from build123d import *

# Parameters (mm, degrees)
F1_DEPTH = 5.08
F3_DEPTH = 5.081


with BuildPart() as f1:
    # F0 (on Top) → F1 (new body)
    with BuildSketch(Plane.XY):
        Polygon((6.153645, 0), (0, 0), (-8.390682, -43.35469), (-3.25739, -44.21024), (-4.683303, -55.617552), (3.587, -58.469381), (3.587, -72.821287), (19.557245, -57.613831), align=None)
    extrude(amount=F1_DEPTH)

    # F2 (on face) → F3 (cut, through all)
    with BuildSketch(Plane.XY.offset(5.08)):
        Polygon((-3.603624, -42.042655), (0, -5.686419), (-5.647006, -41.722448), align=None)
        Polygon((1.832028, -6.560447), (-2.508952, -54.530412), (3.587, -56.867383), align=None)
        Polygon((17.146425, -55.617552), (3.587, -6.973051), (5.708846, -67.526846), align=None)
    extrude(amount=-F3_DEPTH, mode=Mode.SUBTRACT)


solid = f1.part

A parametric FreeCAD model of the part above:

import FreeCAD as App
import Part
import Sketcher
from FreeCAD import Vector
Q = App.Units.Quantity

doc = App.newDocument("Part")
body = doc.addObject("PartDesign::Body", "Body")

# Sketch on XY plane
sketch1 = doc.addObject("Sketcher::SketchObject", "Sketch")
body.addObject(sketch1)
sketch1.AttachmentSupport = (doc.XY_Plane, [""])
sketch1.MapMode = "FlatFace"
sketch1.addGeometry([
    Part.LineSegment(Vector(6.153645, 0, 0), Vector(0, 0, 0)),  # 0
    Part.LineSegment(Vector(0, 0, 0), Vector(-8.390682, -43.35469, 0)),  # 1
    Part.LineSegment(Vector(-8.390682, -43.35469, 0), Vector(-3.25739, -44.21024, 0)),  # 2
    Part.LineSegment(Vector(-3.25739, -44.21024, 0), Vector(-4.683303, -55.617552, 0)),  # 3
    Part.LineSegment(Vector(-4.683303, -55.617552, 0), Vector(3.587, -58.469381, 0)),  # 4
    Part.LineSegment(Vector(3.587, -58.469381, 0), Vector(3.587, -72.821287, 0)),  # 5
    Part.LineSegment(Vector(3.587, -72.821287, 0), Vector(19.557245, -57.613831, 0)),  # 6
    Part.LineSegment(Vector(19.557245, -57.613831, 0), Vector(6.153645, 0, 0)),  # 7
], False)
sketch1.addConstraint([
    Sketcher.Constraint("Coincident", 0, 2, 1, 1),
    Sketcher.Constraint("Coincident", 1, 2, 2, 1),
    Sketcher.Constraint("Coincident", 2, 2, 3, 1),
    Sketcher.Constraint("Coincident", 3, 2, 4, 1),
    Sketcher.Constraint("Coincident", 4, 2, 5, 1),
    Sketcher.Constraint("Coincident", 5, 2, 6, 1),
    Sketcher.Constraint("Coincident", 6, 2, 7, 1),
    Sketcher.Constraint("Coincident", 7, 2, 0, 1),
    Sketcher.Constraint("Horizontal", 0),
    Sketcher.Constraint("Vertical", 5),
    Sketcher.Constraint("Coincident", 0, 2, -1, 1),
    Sketcher.Constraint("Distance", 2, Q("5.2041 mm")),
    Sketcher.Constraint("DistanceX", -1, 1, 4, 2, Q("3.587 mm")),
    Sketcher.Constraint("Distance", 4, Q("8.748191 mm")),
    Sketcher.Constraint("Distance", 6, Q("22.052561 mm")),
    Sketcher.Constraint("Distance", 7, Q("59.15243 mm")),
    Sketcher.Constraint("DistanceX", 0, 2, 0, 1, Q("6.153645 mm")),
    Sketcher.Constraint("DistanceY", 5, 2, 5, 1, Q("14.351906 mm")),
    Sketcher.Constraint("DistanceY", 1, 2, -1, 1, Q("43.35469 mm")),
    Sketcher.Constraint("DistanceX", 2, 2, -1, 1, Q("3.25739 mm")),
    Sketcher.Constraint("DistanceY", 2, 2, -1, 1, Q("44.21024 mm")),
    Sketcher.Constraint("DistanceY", 4, 2, -1, 1, Q("58.469381 mm")),
    Sketcher.Constraint("DistanceX", 1, 2, 3, 2, Q("3.707379 mm")),
])
pad1 = doc.addObject("PartDesign::Pad", "Pad")
body.addObject(pad1)
pad1.Profile = sketch1
pad1.Length = Q("0.2 in")

# Sketch on XY plane
sketch2 = doc.addObject("Sketcher::SketchObject", "Sketch001")
body.addObject(sketch2)
sketch2.AttachmentSupport = (doc.XY_Plane, [""])
sketch2.MapMode = "FlatFace"
sketch2.AttachmentOffset = App.Placement(Vector(0, 0, 0.2 * 25.4), App.Rotation())
sketch2.addGeometry([
    Part.LineSegment(Vector(-3.603624, -42.042655, 0), Vector(0, -5.686419, 0)),  # 0
    Part.LineSegment(Vector(0, -5.686419, 0), Vector(-5.647006, -41.722448, 0)),  # 1
    Part.LineSegment(Vector(-5.647006, -41.722448, 0), Vector(-3.603624, -42.042655, 0)),  # 2
    Part.LineSegment(Vector(1.832028, -6.560447, 0), Vector(-2.508952, -54.530412, 0)),  # 3
    Part.LineSegment(Vector(-2.508952, -54.530412, 0), Vector(3.587, -56.867383, 0)),  # 4
    Part.LineSegment(Vector(3.587, -56.867383, 0), Vector(1.832028, -6.560447, 0)),  # 5
    Part.LineSegment(Vector(17.146425, -55.617552, 0), Vector(3.587, -6.973051, 0)),  # 6
    Part.LineSegment(Vector(3.587, -6.973051, 0), Vector(5.708846, -67.526846, 0)),  # 7
    Part.LineSegment(Vector(5.708846, -67.526846, 0), Vector(17.146425, -55.617552, 0)),  # 8
], False)
sketch2.addConstraint([
    Sketcher.Constraint("Coincident", 0, 2, 1, 1),
    Sketcher.Constraint("Coincident", 1, 2, 2, 1),
    Sketcher.Constraint("Coincident", 2, 2, 0, 1),
    Sketcher.Constraint("Coincident", 3, 2, 4, 1),
    Sketcher.Constraint("Coincident", 4, 2, 5, 1),
    Sketcher.Constraint("Coincident", 5, 2, 3, 1),
    Sketcher.Constraint("Coincident", 6, 2, 7, 1),
    Sketcher.Constraint("Coincident", 7, 2, 8, 1),
    Sketcher.Constraint("Coincident", 8, 2, 6, 1),
    Sketcher.Constraint("PointOnObject", 0, 2, -2),
    Sketcher.Constraint("Perpendicular", 1, 2),
    Sketcher.Constraint("Vertical", 4, 2, 6, 2),
    Sketcher.Constraint("Distance", 1, Q("36.475801 mm")),
    Sketcher.Constraint("Distance", 8, Q("16.512102 mm")),
    Sketcher.Constraint("DistanceX", -1, 1, 4, 2, Q("3.587 mm")),
    Sketcher.Constraint("DistanceY", 1, 2, 5, 2, Q("35.162001 mm")),
    Sketcher.Constraint("DistanceY", 7, 2, 1, 2, Q("25.804398 mm")),
    Sketcher.Constraint("Distance", 2, Q("2.068319 mm")),
    Sketcher.Constraint("Distance", 3, Q("48.16598 mm")),
    Sketcher.Constraint("Distance", 5, Q("50.337538 mm")),
    Sketcher.Constraint("Distance", 7, Q("60.590959 mm")),
    Sketcher.Constraint("DistanceY", 0, 2, -1, 1, Q("5.686419 mm")),
    Sketcher.Constraint("DistanceX", 3, 2, -1, 1, Q("2.508952 mm")),
    Sketcher.Constraint("DistanceY", 3, 2, -1, 1, Q("54.530412 mm")),
    Sketcher.Constraint("DistanceY", 6, 2, -1, 1, Q("6.973051 mm")),
    Sketcher.Constraint("DistanceY", 1, 2, 0, 2, Q("36.036029 mm")),
    Sketcher.Constraint("DistanceY", 4, 2, 8, 2, Q("1.249831 mm")),
])
pocket1 = doc.addObject("PartDesign::Pocket", "Pocket")
body.addObject(pocket1)
pocket1.Profile = sketch2
pocket1.Type = "ThroughAll"

doc.recompute()
